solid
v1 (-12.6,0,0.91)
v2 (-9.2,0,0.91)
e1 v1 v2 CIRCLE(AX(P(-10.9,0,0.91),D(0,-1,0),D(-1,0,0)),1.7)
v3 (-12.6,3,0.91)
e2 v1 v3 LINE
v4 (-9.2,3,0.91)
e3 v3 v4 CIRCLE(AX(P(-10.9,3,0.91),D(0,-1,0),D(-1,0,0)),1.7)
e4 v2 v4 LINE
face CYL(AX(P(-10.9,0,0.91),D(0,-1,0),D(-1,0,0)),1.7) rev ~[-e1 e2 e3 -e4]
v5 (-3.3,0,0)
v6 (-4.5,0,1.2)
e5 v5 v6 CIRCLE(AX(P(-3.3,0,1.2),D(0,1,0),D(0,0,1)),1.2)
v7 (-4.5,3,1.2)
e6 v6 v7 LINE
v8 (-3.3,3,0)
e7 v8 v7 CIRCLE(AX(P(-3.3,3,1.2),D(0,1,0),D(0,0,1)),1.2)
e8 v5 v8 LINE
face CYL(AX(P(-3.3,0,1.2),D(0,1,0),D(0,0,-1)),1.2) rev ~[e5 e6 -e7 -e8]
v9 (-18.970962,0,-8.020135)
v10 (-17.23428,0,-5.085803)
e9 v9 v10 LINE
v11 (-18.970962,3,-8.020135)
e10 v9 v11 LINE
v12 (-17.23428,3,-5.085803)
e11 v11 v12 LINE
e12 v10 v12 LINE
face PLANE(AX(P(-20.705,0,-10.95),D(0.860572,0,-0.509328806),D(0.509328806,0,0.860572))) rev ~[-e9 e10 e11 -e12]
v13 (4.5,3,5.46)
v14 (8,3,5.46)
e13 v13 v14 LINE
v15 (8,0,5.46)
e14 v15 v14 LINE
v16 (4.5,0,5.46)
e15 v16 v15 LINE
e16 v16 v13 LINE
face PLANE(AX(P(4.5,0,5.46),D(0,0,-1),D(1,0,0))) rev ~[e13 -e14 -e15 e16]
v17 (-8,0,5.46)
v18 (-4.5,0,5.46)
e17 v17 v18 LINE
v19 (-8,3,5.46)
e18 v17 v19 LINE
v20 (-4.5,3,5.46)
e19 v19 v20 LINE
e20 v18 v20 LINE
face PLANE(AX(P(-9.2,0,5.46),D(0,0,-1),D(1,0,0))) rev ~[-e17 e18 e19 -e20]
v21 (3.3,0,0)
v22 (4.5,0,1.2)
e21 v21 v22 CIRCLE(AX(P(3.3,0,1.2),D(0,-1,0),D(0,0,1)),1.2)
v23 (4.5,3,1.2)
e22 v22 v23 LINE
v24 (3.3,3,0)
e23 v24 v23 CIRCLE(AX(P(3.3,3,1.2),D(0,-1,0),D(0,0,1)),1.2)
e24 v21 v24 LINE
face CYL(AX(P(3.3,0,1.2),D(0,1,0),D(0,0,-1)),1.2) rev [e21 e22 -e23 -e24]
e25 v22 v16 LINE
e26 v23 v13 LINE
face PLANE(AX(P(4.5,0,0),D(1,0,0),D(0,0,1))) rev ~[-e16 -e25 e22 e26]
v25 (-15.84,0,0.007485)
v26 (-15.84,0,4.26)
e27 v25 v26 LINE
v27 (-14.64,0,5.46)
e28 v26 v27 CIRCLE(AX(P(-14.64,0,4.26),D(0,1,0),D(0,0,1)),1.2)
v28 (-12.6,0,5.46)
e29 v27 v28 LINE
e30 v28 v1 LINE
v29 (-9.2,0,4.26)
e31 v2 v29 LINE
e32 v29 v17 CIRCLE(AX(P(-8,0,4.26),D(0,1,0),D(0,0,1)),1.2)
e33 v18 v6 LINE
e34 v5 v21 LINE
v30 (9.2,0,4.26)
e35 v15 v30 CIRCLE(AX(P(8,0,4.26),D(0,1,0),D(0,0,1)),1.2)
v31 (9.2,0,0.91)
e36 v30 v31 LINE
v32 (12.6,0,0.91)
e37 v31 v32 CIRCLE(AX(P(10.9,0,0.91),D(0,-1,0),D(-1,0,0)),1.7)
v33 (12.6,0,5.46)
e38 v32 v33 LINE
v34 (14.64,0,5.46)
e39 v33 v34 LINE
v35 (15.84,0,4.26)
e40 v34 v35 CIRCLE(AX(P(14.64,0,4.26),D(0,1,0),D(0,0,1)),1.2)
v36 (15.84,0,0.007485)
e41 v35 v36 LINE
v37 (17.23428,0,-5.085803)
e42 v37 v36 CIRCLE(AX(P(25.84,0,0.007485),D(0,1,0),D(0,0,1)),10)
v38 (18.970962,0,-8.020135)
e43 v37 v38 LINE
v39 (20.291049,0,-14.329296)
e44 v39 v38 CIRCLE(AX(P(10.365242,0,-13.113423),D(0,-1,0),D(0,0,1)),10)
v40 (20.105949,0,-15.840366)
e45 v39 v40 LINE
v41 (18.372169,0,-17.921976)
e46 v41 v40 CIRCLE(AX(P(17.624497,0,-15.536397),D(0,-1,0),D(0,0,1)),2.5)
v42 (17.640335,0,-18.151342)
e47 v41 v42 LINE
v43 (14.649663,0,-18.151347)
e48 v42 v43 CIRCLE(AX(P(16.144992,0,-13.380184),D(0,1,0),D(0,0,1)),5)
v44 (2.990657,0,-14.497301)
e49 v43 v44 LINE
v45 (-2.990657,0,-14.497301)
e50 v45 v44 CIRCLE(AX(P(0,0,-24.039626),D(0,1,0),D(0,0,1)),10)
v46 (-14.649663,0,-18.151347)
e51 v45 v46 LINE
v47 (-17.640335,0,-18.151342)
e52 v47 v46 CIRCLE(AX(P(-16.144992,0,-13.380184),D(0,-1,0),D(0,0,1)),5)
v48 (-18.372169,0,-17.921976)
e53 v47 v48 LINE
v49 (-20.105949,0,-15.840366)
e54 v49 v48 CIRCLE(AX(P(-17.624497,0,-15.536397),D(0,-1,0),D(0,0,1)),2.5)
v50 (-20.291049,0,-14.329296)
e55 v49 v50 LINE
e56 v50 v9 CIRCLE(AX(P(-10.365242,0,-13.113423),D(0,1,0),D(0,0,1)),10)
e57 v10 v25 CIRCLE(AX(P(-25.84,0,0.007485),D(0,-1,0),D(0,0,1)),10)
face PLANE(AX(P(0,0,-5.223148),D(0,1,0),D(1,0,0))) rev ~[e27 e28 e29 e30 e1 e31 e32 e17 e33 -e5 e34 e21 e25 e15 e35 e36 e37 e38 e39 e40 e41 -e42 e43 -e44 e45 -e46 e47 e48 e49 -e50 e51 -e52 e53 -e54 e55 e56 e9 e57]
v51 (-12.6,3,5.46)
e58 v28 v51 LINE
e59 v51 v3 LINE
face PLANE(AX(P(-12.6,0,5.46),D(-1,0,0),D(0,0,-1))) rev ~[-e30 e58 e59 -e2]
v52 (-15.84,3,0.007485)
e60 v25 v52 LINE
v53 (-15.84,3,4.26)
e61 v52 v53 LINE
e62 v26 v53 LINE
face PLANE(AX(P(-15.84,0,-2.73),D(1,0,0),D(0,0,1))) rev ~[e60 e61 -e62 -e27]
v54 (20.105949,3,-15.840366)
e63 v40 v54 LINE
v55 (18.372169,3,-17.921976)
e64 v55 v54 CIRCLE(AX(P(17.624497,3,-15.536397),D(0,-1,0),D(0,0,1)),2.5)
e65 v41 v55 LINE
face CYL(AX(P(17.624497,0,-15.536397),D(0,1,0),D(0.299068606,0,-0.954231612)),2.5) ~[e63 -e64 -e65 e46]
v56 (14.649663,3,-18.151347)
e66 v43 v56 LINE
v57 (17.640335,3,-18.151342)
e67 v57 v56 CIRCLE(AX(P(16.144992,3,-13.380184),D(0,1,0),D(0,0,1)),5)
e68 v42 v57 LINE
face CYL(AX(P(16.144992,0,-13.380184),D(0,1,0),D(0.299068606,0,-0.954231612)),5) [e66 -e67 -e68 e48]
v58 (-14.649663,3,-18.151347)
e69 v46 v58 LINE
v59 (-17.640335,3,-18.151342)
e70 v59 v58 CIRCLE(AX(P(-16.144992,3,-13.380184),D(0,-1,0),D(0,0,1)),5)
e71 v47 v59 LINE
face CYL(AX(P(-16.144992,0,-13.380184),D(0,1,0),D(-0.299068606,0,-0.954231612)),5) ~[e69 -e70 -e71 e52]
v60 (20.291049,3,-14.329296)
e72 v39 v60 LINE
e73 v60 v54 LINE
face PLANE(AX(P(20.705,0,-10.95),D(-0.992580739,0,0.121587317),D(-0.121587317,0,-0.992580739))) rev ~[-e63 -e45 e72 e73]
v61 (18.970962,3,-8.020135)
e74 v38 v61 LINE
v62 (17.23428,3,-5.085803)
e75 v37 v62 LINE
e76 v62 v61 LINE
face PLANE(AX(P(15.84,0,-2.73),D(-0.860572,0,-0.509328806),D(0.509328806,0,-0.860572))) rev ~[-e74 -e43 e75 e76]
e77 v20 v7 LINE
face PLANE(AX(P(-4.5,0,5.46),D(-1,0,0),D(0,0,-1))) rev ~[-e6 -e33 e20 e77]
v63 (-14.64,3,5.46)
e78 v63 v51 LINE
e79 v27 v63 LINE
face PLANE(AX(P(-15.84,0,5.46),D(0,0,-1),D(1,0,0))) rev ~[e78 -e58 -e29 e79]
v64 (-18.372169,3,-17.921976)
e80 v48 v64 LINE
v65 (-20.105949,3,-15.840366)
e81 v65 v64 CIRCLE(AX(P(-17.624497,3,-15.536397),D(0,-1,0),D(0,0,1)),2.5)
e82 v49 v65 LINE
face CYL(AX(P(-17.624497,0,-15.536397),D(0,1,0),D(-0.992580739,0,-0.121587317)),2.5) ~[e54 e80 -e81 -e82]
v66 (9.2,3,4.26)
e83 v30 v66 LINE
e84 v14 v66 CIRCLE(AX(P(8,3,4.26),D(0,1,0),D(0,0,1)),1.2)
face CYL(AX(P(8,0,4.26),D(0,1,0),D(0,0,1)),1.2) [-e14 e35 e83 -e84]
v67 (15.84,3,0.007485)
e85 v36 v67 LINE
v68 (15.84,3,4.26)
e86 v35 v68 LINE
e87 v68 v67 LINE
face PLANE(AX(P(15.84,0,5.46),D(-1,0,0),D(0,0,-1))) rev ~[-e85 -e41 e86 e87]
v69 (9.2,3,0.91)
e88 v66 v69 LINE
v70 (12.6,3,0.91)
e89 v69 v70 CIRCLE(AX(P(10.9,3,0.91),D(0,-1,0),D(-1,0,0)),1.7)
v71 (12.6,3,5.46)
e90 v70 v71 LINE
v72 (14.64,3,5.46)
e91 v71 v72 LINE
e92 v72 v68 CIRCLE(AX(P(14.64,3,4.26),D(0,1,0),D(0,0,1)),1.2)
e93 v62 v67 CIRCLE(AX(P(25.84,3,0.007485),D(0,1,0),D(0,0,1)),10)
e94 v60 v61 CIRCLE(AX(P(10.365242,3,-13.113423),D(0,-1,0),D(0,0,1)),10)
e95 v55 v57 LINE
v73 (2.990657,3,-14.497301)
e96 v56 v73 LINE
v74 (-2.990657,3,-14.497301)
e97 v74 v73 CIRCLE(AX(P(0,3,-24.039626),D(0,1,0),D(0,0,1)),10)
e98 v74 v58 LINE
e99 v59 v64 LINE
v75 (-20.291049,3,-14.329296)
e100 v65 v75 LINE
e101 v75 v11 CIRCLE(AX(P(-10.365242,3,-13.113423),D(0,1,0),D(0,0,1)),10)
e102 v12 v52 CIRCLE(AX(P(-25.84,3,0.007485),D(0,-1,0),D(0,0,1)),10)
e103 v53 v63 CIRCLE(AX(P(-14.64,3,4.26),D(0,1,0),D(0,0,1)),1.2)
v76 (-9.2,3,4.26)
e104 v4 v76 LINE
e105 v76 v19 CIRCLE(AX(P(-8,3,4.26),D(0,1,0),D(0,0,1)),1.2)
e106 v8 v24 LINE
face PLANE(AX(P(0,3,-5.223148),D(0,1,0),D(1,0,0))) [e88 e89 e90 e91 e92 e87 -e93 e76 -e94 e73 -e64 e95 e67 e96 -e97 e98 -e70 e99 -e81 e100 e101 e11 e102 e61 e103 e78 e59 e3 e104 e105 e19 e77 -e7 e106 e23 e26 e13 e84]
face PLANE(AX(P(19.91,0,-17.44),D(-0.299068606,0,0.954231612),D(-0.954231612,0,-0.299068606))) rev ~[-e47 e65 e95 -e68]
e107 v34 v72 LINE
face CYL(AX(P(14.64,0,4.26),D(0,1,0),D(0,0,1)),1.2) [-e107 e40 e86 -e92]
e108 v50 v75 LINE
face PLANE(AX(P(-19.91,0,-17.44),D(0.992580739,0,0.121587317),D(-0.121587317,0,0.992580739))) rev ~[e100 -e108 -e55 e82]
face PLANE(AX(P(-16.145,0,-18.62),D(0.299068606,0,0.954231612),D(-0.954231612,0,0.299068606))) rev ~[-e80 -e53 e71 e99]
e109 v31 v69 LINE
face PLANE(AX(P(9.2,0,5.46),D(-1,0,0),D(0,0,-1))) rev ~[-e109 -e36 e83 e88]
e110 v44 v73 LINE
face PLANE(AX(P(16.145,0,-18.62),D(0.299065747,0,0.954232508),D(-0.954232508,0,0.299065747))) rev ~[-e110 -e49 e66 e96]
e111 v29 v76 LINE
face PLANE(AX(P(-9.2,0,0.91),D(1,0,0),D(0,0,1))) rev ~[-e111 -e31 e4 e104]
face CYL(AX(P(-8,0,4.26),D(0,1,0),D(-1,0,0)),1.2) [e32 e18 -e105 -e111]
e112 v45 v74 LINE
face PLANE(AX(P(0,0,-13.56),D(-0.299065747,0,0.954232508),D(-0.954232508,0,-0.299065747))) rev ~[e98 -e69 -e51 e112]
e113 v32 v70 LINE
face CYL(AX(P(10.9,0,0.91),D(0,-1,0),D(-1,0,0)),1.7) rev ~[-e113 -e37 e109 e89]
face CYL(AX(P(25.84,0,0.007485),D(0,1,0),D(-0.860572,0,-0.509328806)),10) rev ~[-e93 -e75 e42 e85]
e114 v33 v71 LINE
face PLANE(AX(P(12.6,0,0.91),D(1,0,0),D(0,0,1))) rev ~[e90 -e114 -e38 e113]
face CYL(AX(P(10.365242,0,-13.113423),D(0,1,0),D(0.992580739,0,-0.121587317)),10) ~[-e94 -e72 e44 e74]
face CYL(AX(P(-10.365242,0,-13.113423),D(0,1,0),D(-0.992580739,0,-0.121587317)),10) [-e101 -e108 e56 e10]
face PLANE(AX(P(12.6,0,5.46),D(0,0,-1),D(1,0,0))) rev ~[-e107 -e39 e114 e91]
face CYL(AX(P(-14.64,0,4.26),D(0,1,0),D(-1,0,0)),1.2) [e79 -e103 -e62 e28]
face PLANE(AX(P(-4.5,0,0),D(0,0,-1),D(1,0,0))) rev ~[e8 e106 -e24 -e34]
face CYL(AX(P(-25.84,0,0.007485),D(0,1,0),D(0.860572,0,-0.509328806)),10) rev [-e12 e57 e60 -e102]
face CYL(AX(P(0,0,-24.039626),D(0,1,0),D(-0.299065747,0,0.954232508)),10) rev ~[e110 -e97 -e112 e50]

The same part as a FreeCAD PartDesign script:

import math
import FreeCAD as App
import Part
import Sketcher

V = App.Vector
Q = App.Units.Quantity


def edges_at(feature, points):
    """Names of the edges that pass closest to the given points."""
    edges = feature.Shape.Edges
    near = lambda p: min(range(len(edges)), key=lambda i: edges[i].distToShape(Part.Vertex(*p))[0])
    return sorted({f"Edge{near(p) + 1}" for p in points})

doc = App.newDocument("Part")
body = doc.addObject("PartDesign::Body", "Body")

# Sketch on XZ plane
sketch1 = doc.addObject("Sketcher::SketchObject", "Sketch")
body.addObject(sketch1)
sketch1.AttachmentSupport = (doc.XZ_Plane, [""])
sketch1.MapMode = "FlatFace"
sketch1.addGeometry([
    Part.LineSegment(V(-4.5, 0, 0), V(4.5, 0, 0)),  # 0
    Part.LineSegment(V(4.5, 0, 0), V(4.5, 5.5, 0)),  # 1
    Part.LineSegment(V(4.5, 5.5, 0), V(9.2, 5.5, 0)),  # 2
    Part.LineSegment(V(9.2, 5.5, 0), V(9.2, 0.9, 0)),  # 3
    Part.ArcOfCircle(Part.Circle(V(10.9, 0.9, 0), V(0, 0, 1), 1.7), math.radians(180), math.radians(360)),  # 4
    Part.LineSegment(V(12.6, 0.9, 0), V(12.6, 5.5, 0)),  # 5
    Part.LineSegment(V(12.6, 5.5, 0), V(15.8, 5.5, 0)),  # 6
    Part.LineSegment(V(15.8, 5.5, 0), V(15.8, -2.7, 0)),  # 7
    Part.LineSegment(V(15.8, -2.7, 0), V(20.7, -10.9, 0)),  # 8
    Part.LineSegment(V(20.7, -10.9, 0), V(19.9, -17.4, 0)),  # 9
    Part.LineSegment(V(19.9, -17.4, 0), V(16.1, -18.6, 0)),  # 10
    Part.LineSegment(V(16.1, -18.6, 0), V(0, -13.6, 0)),  # 11
    Part.LineSegment(V(0, -13.6, 0), V(-16.1, -18.6, 0)),  # 12
    Part.LineSegment(V(-16.1, -18.6, 0), V(-19.9, -17.4, 0)),  # 13
    Part.LineSegment(V(-19.9, -17.4, 0), V(-20.7, -10.9, 0)),  # 14
    Part.LineSegment(V(-20.7, -10.9, 0), V(-15.8, -2.7, 0)),  # 15
    Part.LineSegment(V(-15.8, -2.7, 0), V(-15.8, 5.5, 0)),  # 16
    Part.LineSegment(V(-15.8, 5.5, 0), V(-12.6, 5.5, 0)),  # 17
    Part.LineSegment(V(-12.6, 5.5, 0), V(-12.6, 0.9, 0)),  # 18
    Part.ArcOfCircle(Part.Circle(V(-10.9, 0.9, 0), V(0, 0, 1), 1.7), math.radians(180), math.radians(360)),  # 19
    Part.LineSegment(V(-9.2, 0.9, 0), V(-9.2, 5.5, 0)),  # 20
    Part.LineSegment(V(-9.2, 5.5, 0), V(-4.5, 5.5, 0)),  # 21
    Part.LineSegment(V(-4.5, 5.5, 0), V(-4.5, 0, 0)),  # 22
], False)
sketch1.addConstraint([
    Sketcher.Constraint("Coincident", 0, 2, 1, 1),
    Sketcher.Constraint("Coincident", 1, 2, 2, 1),
    Sketcher.Constraint("Coincident", 2, 2, 3, 1),
    Sketcher.Constraint("Tangent", 3, 2, 4, 1),
    Sketcher.Constraint("Tangent", 4, 2, 5, 1),
    Sketcher.Constraint("Coincident", 5, 2, 6, 1),
    Sketcher.Constraint("Coincident", 6, 2, 7, 1),
    Sketcher.Constraint("Coincident", 7, 2, 8, 1),
    Sketcher.Constraint("Coincident", 8, 2, 9, 1),
    Sketcher.Constraint("Coincident", 9, 2, 10, 1),
    Sketcher.Constraint("Coincident", 10, 2, 11, 1),
    Sketcher.Constraint("Coincident", 11, 2, 12, 1),
    Sketcher.Constraint("Coincident", 12, 2, 13, 1),
    Sketcher.Constraint("Coincident", 13, 2, 14, 1),
    Sketcher.Constraint("Coincident", 14, 2, 15, 1),
    Sketcher.Constraint("Coincident", 15, 2, 16, 1),
    Sketcher.Constraint("Coincident", 16, 2, 17, 1),
    Sketcher.Constraint("Coincident", 17, 2, 18, 1),
    Sketcher.Constraint("Tangent", 18, 2, 19, 1),
    Sketcher.Constraint("Tangent", 19, 2, 20, 1),
    Sketcher.Constraint("Coincident", 20, 2, 21, 1),
    Sketcher.Constraint("Coincident", 21, 2, 22, 1),
    Sketcher.Constraint("Coincident", 22, 2, 0, 1),
    Sketcher.Constraint("Horizontal", 0),
    Sketcher.Constraint("Vertical", 1),
    Sketcher.Constraint("Horizontal", 2),
    Sketcher.Constraint("Vertical", 3),
    Sketcher.Constraint("Vertical", 5),
    Sketcher.Constraint("Horizontal", 6),
    Sketcher.Constraint("Vertical", 7),
    Sketcher.Constraint("Vertical", 16),
    Sketcher.Constraint("Horizontal", 17),
    Sketcher.Constraint("Vertical", 18),
    Sketcher.Constraint("Vertical", 20),
    Sketcher.Constraint("Horizontal", 21),
    Sketcher.Constraint("Vertical", 22),
    Sketcher.Constraint("Equal", 4, 19),
    Sketcher.Constraint("Symmetric", 0, 2, 22, 2, -1, 1),
    Sketcher.Constraint("Symmetric", 4, 3, 19, 3, -2),
    Sketcher.Constraint("Symmetric", 10, 2, 12, 2, -2),
    Sketcher.Constraint("Symmetric", 9, 2, 13, 2, -2),
    Sketcher.Constraint("Symmetric", 8, 2, 14, 2, -2),
    Sketcher.Constraint("Symmetric", 7, 2, 15, 2, -2),
    Sketcher.Constraint("PointOnObject", 11, 2, -2),
    Sketcher.Constraint("Horizontal", 2, 2, 5, 2),
    Sketcher.Constraint("Horizontal", 6, 2, 16, 2),
    Sketcher.Constraint("Horizontal", 17, 2, 20, 2),
    Sketcher.Constraint("Radius", 4, Q("1.7 mm")),
    Sketcher.Constraint("DistanceX", 0, 1, 0, 2, Q("9 mm")),
    Sketcher.Constraint("DistanceX", 2, 1, 2, 2, Q("4.7 mm")),
    Sketcher.Constraint("DistanceX", 6, 1, 6, 2, Q("3.24 mm")),
    Sketcher.Constraint("DistanceY", 1, 1, 1, 2, Q("5.46 mm")),
    Sketcher.Constraint("DistanceY", 3, 2, 3, 1, Q("4.55 mm")),
    Sketcher.Constraint("DistanceY", 7, 2, 7, 1, Q("8.19 mm")),
    Sketcher.Constraint("DistanceY", 13, 2, 1, 2, Q("22.9 mm")),
    Sketcher.Constraint("DistanceY", 8, 2, -1, 1, Q("10.95 mm")),
    Sketcher.Constraint("DistanceX", -1, 1, 9, 2, Q("19.91 mm")),
    Sketcher.Constraint("DistanceY", 10, 2, -1, 1, Q("18.62 mm")),
    Sketcher.Constraint("DistanceY", 11, 2, -1, 1, Q("13.56 mm")),
    Sketcher.Constraint("DistanceX", 10, 2, 8, 2, Q("4.56 mm")),
    Sketcher.Constraint("DistanceX", -1, 1, 8, 2, Q("20.705 mm")),
])
pad1 = doc.addObject("PartDesign::Pad", "Pad")
body.addObject(pad1)
pad1.Profile = sketch1
pad1.Length = 3
pad1.Reversed = True
doc.recompute()

fillet = doc.addObject("PartDesign::Fillet", "Fillet")
body.addObject(fillet)
fillet.Base = (pad1, edges_at(pad1, [
    (4.5, 1.5, 0),
    (-4.5, 1.5, 0),
    (-9.2, 1.5, 5.46),
    (-15.84, 1.5, 5.46),
    (15.84, 1.5, 5.46),
    (9.2, 1.5, 5.46),
]))
fillet.Radius = 1.2
doc.recompute()

fillet2 = doc.addObject("PartDesign::Fillet", "Fillet001")
body.addObject(fillet2)
fillet2.Base = (fillet, edges_at(fillet, [(-16.145, 1.5, -18.62), (16.145, 1.5, -18.62)]))
fillet2.Radius = 5
doc.recompute()

fillet3 = doc.addObject("PartDesign::Fillet", "Fillet002")
body.addObject(fillet3)
fillet3.Base = (fillet2, edges_at(fillet2, [
    (-15.84, 1.5, -2.73),
    (-20.705, 1.5, -10.95),
    (0, 1.5, -13.56),
    (20.705, 1.5, -10.95),
    (15.84, 1.5, -2.73),
]))
fillet3.Radius = 10
doc.recompute()

fillet4 = doc.addObject("PartDesign::Fillet", "Fillet003")
body.addObject(fillet4)
fillet4.Base = (fillet3, edges_at(fillet3, [(-19.91, 1.5, -17.44), (19.91, 1.5, -17.44)]))
fillet4.Radius = 2.5

doc.recompute()
